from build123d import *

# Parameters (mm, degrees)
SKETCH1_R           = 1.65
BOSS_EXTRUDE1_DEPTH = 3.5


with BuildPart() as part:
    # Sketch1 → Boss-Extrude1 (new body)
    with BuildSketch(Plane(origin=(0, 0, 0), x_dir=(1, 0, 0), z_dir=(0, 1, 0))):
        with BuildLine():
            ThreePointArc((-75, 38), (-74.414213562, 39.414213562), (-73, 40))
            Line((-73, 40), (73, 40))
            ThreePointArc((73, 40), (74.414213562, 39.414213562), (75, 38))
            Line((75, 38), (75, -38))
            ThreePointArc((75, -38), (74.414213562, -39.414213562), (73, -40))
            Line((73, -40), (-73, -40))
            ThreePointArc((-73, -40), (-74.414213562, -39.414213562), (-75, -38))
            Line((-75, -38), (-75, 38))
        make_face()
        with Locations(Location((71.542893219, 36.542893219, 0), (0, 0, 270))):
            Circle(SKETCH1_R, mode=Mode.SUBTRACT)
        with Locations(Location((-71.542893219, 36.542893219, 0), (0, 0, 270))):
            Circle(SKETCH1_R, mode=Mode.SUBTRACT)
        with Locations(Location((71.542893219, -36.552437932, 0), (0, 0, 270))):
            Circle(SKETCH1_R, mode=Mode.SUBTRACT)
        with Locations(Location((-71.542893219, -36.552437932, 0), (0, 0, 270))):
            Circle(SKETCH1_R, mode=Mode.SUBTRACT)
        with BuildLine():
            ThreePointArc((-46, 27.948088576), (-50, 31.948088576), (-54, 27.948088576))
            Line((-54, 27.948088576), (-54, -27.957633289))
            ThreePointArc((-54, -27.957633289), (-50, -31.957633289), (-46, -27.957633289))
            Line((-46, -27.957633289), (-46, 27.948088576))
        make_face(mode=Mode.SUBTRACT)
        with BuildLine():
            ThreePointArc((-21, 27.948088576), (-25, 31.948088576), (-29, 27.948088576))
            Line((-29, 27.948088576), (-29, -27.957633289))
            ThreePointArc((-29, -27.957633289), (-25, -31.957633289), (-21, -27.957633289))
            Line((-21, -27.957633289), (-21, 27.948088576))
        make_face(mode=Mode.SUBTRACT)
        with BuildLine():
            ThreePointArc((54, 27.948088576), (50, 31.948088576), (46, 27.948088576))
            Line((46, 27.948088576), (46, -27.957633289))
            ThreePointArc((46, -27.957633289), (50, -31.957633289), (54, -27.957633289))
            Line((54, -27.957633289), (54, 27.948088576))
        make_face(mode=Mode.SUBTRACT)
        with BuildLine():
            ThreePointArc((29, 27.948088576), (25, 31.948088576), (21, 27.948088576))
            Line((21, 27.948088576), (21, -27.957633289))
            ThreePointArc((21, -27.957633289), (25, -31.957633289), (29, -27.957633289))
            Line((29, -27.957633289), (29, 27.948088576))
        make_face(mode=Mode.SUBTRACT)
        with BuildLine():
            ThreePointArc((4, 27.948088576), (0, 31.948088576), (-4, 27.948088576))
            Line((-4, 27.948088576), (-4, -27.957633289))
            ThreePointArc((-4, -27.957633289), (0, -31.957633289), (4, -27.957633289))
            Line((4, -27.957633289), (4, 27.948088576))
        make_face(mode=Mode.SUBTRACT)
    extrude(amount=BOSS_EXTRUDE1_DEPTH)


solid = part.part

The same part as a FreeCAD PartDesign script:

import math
import FreeCAD as App
import Part
import Sketcher
from FreeCAD import Vector

doc = App.newDocument("Part")
params = doc.addObject("Spreadsheet::Sheet", "Params")
for row, (alias, value) in enumerate([
    ("sketch1_radius", "2 mm"),
    ("sketch1_radius2", "4 mm"),
    ("sketch1_diameter", "3.3 mm"),
    ("sketch1_width", "146 mm"),
    ("sketch1_height", "76 mm"),
    ("pad1_length", "3.5 mm"),
], start=1):
    params.set(f"A{row}", alias)
    params.set(f"B{row}", "=" + value)
    params.setAlias(f"B{row}", alias)

body = doc.addObject("PartDesign::Body", "Body")

sketch1 = body.newObject("Sketcher::SketchObject", "Sketch")
sketch1.AttachmentSupport = (doc.getObject("XZ_Plane"), [""])
sketch1.MapMode = "FlatFace"
sketch1.addGeometry(Part.ArcOfCircle(Part.Circle(Vector(-73, -38, 0), Vector(0, 0, 1), 2), math.radians(-180), math.radians(-90)), False)
sketch1.addGeometry(Part.LineSegment(Vector(-75, -38, 0), Vector(-75, 38, 0)), False)
sketch1.addGeometry(Part.ArcOfCircle(Part.Circle(Vector(-73, 38, 0), Vector(0, 0, 1), 2), math.radians(90), math.radians(180)), False)
sketch1.addGeometry(Part.LineSegment(Vector(-73, 40, 0), Vector(73, 40, 0)), False)
sketch1.addGeometry(Part.ArcOfCircle(Part.Circle(Vector(73, 38, 0), Vector(0, 0, 1), 2), math.radians(0), math.radians(90)), False)
sketch1.addGeometry(Part.LineSegment(Vector(75, 38, 0), Vector(75, -38, 0)), False)
sketch1.addGeometry(Part.ArcOfCircle(Part.Circle(Vector(73, -38, 0), Vector(0, 0, 1), 2), math.radians(-90), math.radians(0)), False)
sketch1.addGeometry(Part.LineSegment(Vector(73, -40, 0), Vector(-73, -40, 0)), False)
sketch1.addGeometry(Part.Circle(Vector(71.542893, 36.552438, 0), Vector(0, 0, 1), 1.65), False)
sketch1.addGeometry(Part.Circle(Vector(-71.542893, 36.552438, 0), Vector(0, 0, 1), 1.65), False)
sketch1.addGeometry(Part.LineSegment(Vector(54, -27.948089, 0), Vector(54, 27.957633, 0)), False)
sketch1.addGeometry(Part.ArcOfCircle(Part.Circle(Vector(50, 27.957633, 0), Vector(0, 0, 1), 4), math.radians(0), math.radians(180)), False)
sketch1.addGeometry(Part.LineSegment(Vector(46, 27.957633, 0), Vector(46, -27.948089, 0)), False)
sketch1.addGeometry(Part.ArcOfCircle(Part.Circle(Vector(50, -27.948089, 0), Vector(0, 0, 1), 4), math.radians(180), math.radians(360)), False)
sketch1.addGeometry(Part.LineSegment(Vector(29, -27.948089, 0), Vector(29, 27.957633, 0)), False)
sketch1.addGeometry(Part.ArcOfCircle(Part.Circle(Vector(25, 27.957633, 0), Vector(0, 0, 1), 4), math.radians(0), math.radians(180)), False)
sketch1.addGeometry(Part.LineSegment(Vector(21, 27.957633, 0), Vector(21, -27.948089, 0)), False)
sketch1.addGeometry(Part.ArcOfCircle(Part.Circle(Vector(25, -27.948089, 0), Vector(0, 0, 1), 4), math.radians(180), math.radians(360)), False)
sketch1.addGeometry(Part.LineSegment(Vector(4, -27.948089, 0), Vector(4, 27.957633, 0)), False)
sketch1.addGeometry(Part.ArcOfCircle(Part.Circle(Vector(0, 27.957633, 0), Vector(0, 0, 1), 4), math.radians(0), math.radians(180)), False)
sketch1.addGeometry(Part.LineSegment(Vector(-4, 27.957633, 0), Vector(-4, -27.948089, 0)), False)
sketch1.addGeometry(Part.ArcOfCircle(Part.Circle(Vector(0, -27.948089, 0), Vector(0, 0, 1), 4), math.radians(180), math.radians(360)), False)
sketch1.addGeometry(Part.Circle(Vector(71.542893, -36.542893, 0), Vector(0, 0, 1), 1.65), False)
sketch1.addGeometry(Part.LineSegment(Vector(-21, -27.948089, 0), Vector(-21, 27.957633, 0)), False)
sketch1.addGeometry(Part.ArcOfCircle(Part.Circle(Vector(-25, 27.957633, 0), Vector(0, 0, 1), 4), math.radians(0), math.radians(180)), False)
sketch1.addGeometry(Part.LineSegment(Vector(-29, 27.957633, 0), Vector(-29, -27.948089, 0)), False)
sketch1.addGeometry(Part.ArcOfCircle(Part.Circle(Vector(-25, -27.948089, 0), Vector(0, 0, 1), 4), math.radians(180), math.radians(360)), False)
sketch1.addGeometry(Part.LineSegment(Vector(-46, -27.948089, 0), Vector(-46, 27.957633, 0)), False)
sketch1.addGeometry(Part.ArcOfCircle(Part.Circle(Vector(-50, 27.957633, 0), Vector(0, 0, 1), 4), math.radians(0), math.radians(180)), False)
sketch1.addGeometry(Part.LineSegment(Vector(-54, 27.957633, 0), Vector(-54, -27.948089, 0)), False)
sketch1.addGeometry(Part.ArcOfCircle(Part.Circle(Vector(-50, -27.948089, 0), Vector(0, 0, 1), 4), math.radians(180), math.radians(360)), False)
sketch1.addGeometry(Part.Circle(Vector(-71.542893, -36.542893, 0), Vector(0, 0, 1), 1.65), False)
sketch1.addConstraint(Sketcher.Constraint("Tangent", 0, 1, 1, 1))
sketch1.addConstraint(Sketcher.Constraint("Tangent", 1, 2, 2, 2))
sketch1.addConstraint(Sketcher.Constraint("Tangent", 2, 1, 3, 1))
sketch1.addConstraint(Sketcher.Constraint("Tangent", 3, 2, 4, 2))
sketch1.addConstraint(Sketcher.Constraint("Tangent", 4, 1, 5, 1))
sketch1.addConstraint(Sketcher.Constraint("Tangent", 5, 2, 6, 2))
sketch1.addConstraint(Sketcher.Constraint("Tangent", 6, 1, 7, 1))
sketch1.addConstraint(Sketcher.Constraint("Tangent", 7, 2, 0, 2))
sketch1.addConstraint(Sketcher.Constraint("Tangent", 10, 2, 11, 1))
sketch1.addConstraint(Sketcher.Constraint("Tangent", 11, 2, 12, 1))
sketch1.addConstraint(Sketcher.Constraint("Tangent", 12, 2, 13, 1))
sketch1.addConstraint(Sketcher.Constraint("Tangent", 13, 2, 10, 1))
sketch1.addConstraint(Sketcher.Constraint("Tangent", 14, 2, 15, 1))
sketch1.addConstraint(Sketcher.Constraint("Tangent", 15, 2, 16, 1))
sketch1.addConstraint(Sketcher.Constraint("Tangent", 16, 2, 17, 1))
sketch1.addConstraint(Sketcher.Constraint("Tangent", 17, 2, 14, 1))
sketch1.addConstraint(Sketcher.Constraint("Tangent", 18, 2, 19, 1))
sketch1.addConstraint(Sketcher.Constraint("Tangent", 19, 2, 20, 1))
sketch1.addConstraint(Sketcher.Constraint("Tangent", 20, 2, 21, 1))
sketch1.addConstraint(Sketcher.Constraint("Tangent", 21, 2, 18, 1))
sketch1.addConstraint(Sketcher.Constraint("Tangent", 23, 2, 24, 1))
sketch1.addConstraint(Sketcher.Constraint("Tangent", 24, 2, 25, 1))
sketch1.addConstraint(Sketcher.Constraint("Tangent", 25, 2, 26, 1))
sketch1.addConstraint(Sketcher.Constraint("Tangent", 26, 2, 23, 1))
sketch1.addConstraint(Sketcher.Constraint("Tangent", 27, 2, 28, 1))
sketch1.addConstraint(Sketcher.Constraint("Tangent", 28, 2, 29, 1))
sketch1.addConstraint(Sketcher.Constraint("Tangent", 29, 2, 30, 1))
sketch1.addConstraint(Sketcher.Constraint("Tangent", 30, 2, 27, 1))
sketch1.addConstraint(Sketcher.Constraint("Vertical", 1))
sketch1.addConstraint(Sketcher.Constraint("Horizontal", 3))
sketch1.addConstraint(Sketcher.Constraint("Vertical", 5))
sketch1.addConstraint(Sketcher.Constraint("Horizontal", 7))
sketch1.addConstraint(Sketcher.Constraint("Vertical", 10))
sketch1.addConstraint(Sketcher.Constraint("Vertical", 12))
sketch1.addConstraint(Sketcher.Constraint("Vertical", 14))
sketch1.addConstraint(Sketcher.Constraint("Vertical", 16))
sketch1.addConstraint(Sketcher.Constraint("Vertical", 18))
sketch1.addConstraint(Sketcher.Constraint("Vertical", 20))
sketch1.addConstraint(Sketcher.Constraint("Vertical", 23))
sketch1.addConstraint(Sketcher.Constraint("Vertical", 25))
sketch1.addConstraint(Sketcher.Constraint("Vertical", 27))
sketch1.addConstraint(Sketcher.Constraint("Vertical", 29))
sketch1.addConstraint(Sketcher.Constraint("Equal", 0, 2))
sketch1.addConstraint(Sketcher.Constraint("Equal", 2, 4))
sketch1.addConstraint(Sketcher.Constraint("Equal", 4, 6))
sketch1.addConstraint(Sketcher.Constraint("Equal", 8, 9))
sketch1.addConstraint(Sketcher.Constraint("Equal", 13, 15))
sketch1.addConstraint(Sketcher.Constraint("Equal", 17, 19))
sketch1.addConstraint(Sketcher.Constraint("Equal", 9, 22))
sketch1.addConstraint(Sketcher.Constraint("Equal", 21, 24))
sketch1.addConstraint(Sketcher.Constraint("Equal", 26, 28))
sketch1.addConstraint(Sketcher.Constraint("Equal", 22, 31))
sketch1.addConstraint(Sketcher.Constraint("Symmetric", 0, 3, 4, 3, -1, 1))
sketch1.addConstraint(Sketcher.Constraint("Symmetric", 8, 3, 9, 3, -2))
sketch1.addConstraint(Sketcher.Constraint("Symmetric", 15, 3, 24, 3, -2))
sketch1.addConstraint(Sketcher.Constraint("Symmetric", 11, 3, 28, 3, -2))
sketch1.addConstraint(Sketcher.Constraint("Symmetric", 22, 3, 31, 3, -2))
sketch1.addConstraint(Sketcher.Constraint("PointOnObject", 19, 3, -2))
sketch1.addConstraint(Sketcher.Constraint("Horizontal", 11, 3, 15, 3))
sketch1.addConstraint(Sketcher.Constraint("Horizontal", 13, 3, 17, 3))
sketch1.addConstraint(Sketcher.Constraint("Horizontal", 15, 3, 19, 3))
sketch1.addConstraint(Sketcher.Constraint("Horizontal", 17, 3, 21, 3))
sketch1.addConstraint(Sketcher.Constraint("Horizontal", 21, 3, 26, 3))
sketch1.addConstraint(Sketcher.Constraint("Horizontal", 26, 3, 30, 3))
sketch1.addConstraint(Sketcher.Constraint("Vertical", 8, 3, 22, 3))
sketch1.addConstraint(Sketcher.Constraint("Radius", 0, 2.0))
sketch1.addConstraint(Sketcher.Constraint("Radius", 11, 4.0))
sketch1.addConstraint(Sketcher.Constraint("Diameter", 8, 3.3))
sketch1.addConstraint(Sketcher.Constraint("DistanceX", 3, 1, 3, 2, 146.0))
sketch1.addConstraint(Sketcher.Constraint("DistanceY", 1, 1, 1, 2, 76.0))
sketch1.addConstraint(Sketcher.Constraint("DistanceX", -1, 1, 11, 3, 50.0))
sketch1.addConstraint(Sketcher.Constraint("DistanceX", -1, 1, 15, 3, 25.0))
sketch1.addConstraint(Sketcher.Constraint("DistanceY", 10, 1, 10, 2, 55.905722))
sketch1.addConstraint(Sketcher.Constraint("DistanceY", 13, 3, -1, 1, 27.948089))
sketch1.addConstraint(Sketcher.Constraint("DistanceX", -1, 1, 8, 3, 71.542893))
sketch1.addConstraint(Sketcher.Constraint("DistanceY", -1, 1, 8, 3, 36.552438))
sketch1.addConstraint(Sketcher.Constraint("DistanceY", 22, 3, -1, 1, 36.542893))
sketch1.setExpression("Constraints[65]", "Params.sketch1_radius")
sketch1.setExpression("Constraints[66]", "Params.sketch1_radius2")
sketch1.setExpression("Constraints[67]", "Params.sketch1_diameter")
sketch1.setExpression("Constraints[68]", "Params.sketch1_width")
sketch1.setExpression("Constraints[69]", "Params.sketch1_height")
pad1 = body.newObject("PartDesign::Pad", "Pad")
pad1.Profile = sketch1
pad1.setExpression("Length", "Params.pad1_length")
pad1.Reversed = True

doc.recompute()
